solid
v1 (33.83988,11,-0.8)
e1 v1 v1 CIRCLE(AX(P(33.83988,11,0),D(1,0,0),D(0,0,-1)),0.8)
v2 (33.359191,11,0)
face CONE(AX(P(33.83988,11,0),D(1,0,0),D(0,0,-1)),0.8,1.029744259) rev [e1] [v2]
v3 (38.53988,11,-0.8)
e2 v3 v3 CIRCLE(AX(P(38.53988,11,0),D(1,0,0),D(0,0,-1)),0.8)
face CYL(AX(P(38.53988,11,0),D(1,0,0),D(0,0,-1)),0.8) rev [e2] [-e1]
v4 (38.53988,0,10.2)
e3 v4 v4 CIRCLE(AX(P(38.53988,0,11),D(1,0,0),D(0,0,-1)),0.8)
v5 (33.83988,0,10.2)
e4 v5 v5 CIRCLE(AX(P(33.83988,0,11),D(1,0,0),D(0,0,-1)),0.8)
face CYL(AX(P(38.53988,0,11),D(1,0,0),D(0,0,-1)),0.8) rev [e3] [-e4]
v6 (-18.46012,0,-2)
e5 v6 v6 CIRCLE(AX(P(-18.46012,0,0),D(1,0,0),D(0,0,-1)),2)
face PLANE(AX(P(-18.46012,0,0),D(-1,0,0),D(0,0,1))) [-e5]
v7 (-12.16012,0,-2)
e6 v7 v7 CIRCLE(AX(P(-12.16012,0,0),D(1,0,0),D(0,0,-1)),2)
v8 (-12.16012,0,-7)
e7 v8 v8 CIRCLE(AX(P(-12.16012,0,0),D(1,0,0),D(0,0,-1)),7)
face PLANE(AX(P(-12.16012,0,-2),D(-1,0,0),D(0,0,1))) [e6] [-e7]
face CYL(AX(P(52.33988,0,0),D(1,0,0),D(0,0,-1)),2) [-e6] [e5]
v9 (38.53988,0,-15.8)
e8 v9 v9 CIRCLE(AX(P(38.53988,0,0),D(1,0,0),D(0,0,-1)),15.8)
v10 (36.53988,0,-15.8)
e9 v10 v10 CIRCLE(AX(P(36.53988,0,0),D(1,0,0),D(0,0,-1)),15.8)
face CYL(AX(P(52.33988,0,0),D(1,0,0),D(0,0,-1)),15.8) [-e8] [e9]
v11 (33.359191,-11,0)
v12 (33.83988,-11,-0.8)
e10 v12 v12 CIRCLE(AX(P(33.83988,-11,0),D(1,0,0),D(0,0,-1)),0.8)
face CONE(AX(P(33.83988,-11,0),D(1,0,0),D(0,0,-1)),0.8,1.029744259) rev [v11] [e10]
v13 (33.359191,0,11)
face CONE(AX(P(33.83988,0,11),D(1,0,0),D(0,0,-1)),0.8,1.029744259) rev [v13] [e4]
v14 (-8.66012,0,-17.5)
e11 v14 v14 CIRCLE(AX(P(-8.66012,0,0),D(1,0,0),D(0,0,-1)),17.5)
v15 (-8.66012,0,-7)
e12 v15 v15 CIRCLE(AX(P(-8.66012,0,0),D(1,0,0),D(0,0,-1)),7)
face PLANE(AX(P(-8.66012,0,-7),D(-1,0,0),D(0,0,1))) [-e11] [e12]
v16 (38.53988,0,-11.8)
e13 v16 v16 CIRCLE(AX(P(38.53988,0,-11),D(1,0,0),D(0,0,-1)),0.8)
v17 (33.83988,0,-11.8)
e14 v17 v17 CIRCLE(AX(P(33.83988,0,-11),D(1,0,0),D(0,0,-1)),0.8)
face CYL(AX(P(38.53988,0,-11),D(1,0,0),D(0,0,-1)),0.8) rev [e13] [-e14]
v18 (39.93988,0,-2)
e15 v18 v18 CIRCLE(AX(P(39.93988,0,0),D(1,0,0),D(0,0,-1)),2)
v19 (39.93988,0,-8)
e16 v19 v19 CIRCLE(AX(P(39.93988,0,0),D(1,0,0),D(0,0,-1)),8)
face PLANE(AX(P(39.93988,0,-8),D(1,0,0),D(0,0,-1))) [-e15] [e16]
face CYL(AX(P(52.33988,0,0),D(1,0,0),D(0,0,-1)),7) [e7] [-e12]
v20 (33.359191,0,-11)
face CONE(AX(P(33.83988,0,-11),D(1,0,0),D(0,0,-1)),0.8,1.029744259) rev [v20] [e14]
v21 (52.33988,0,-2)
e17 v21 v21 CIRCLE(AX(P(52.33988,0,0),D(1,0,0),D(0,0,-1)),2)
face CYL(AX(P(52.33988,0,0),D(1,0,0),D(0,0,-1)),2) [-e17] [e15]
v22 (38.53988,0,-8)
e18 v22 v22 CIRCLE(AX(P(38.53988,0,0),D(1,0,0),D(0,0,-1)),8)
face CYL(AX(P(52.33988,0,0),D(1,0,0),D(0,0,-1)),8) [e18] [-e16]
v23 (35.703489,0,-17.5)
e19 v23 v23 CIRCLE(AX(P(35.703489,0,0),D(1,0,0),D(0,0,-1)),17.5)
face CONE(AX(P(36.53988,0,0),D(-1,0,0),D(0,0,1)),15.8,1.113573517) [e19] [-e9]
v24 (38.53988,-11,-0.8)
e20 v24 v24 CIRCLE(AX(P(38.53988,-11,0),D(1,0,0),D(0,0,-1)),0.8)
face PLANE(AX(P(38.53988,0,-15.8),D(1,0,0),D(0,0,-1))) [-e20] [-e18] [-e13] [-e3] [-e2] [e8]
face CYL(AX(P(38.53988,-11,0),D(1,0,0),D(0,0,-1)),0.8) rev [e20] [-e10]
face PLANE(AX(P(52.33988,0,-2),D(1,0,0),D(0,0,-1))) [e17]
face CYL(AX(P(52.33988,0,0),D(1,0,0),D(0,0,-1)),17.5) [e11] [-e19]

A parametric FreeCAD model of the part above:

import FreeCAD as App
import Part
import Sketcher
from FreeCAD import Vector
Q = App.Units.Quantity


def add_polygon(sketch, points):
    """Adds a closed chain of lines whose ends are joined by coincident constraints."""
    first, n = sketch.GeometryCount, len(points)
    for a, b in zip(points, points[1:] + points[:1]):
        sketch.addGeometry(Part.LineSegment(App.Vector(*a, 0), App.Vector(*b, 0)), False)
    for i in range(n):
        sketch.addConstraint(Sketcher.Constraint("Coincident", first + i, 2, first + (i + 1) % n, 1))

doc = App.newDocument("Part")
params = doc.addObject("Spreadsheet::Sheet", "Params")
for row, (alias, value) in enumerate([
    ("sketch1_width", "2 mm"),
    ("sketch1_height", "6 mm"),
    ("sketch1_height2", "5 mm"),
    ("sketch1_width2", "70.8 mm"),
    ("sketch1_width3", "12.4 mm"),
    ("revolution_angle", "360 deg"),
    ("sketch2_width", "4.7 mm"),
    ("sketch2_height", "0.8 mm"),
    ("groove_angle", "360 deg"),
], start=1):
    params.set(f"A{row}", alias)
    params.set(f"B{row}", "=" + value)
    params.setAlias(f"B{row}", alias)

body = doc.addObject("PartDesign::Body", "Body")

sketch1 = body.newObject("Sketcher::SketchObject", "Sketch")
sketch1.AttachmentSupport = (doc.getObject("XZ_Plane"), [""])
sketch1.MapMode = "FlatFace"
add_polygon(sketch1, [(-18.5, -2), (-18.5, 0), (52.3, 0), (52.3, -2), (39.9, -2), (39.9, -8), (38.5, -8), (38.5, -15.8), (36.5, -15.8), (35.7, -17.5), (-8.7, -17.5), (-8.7, -7), (-12.2, -7), (-12.2, -2)])
sketch1.addConstraint(Sketcher.Constraint("Vertical", 0))
sketch1.addConstraint(Sketcher.Constraint("Horizontal", 1))
sketch1.addConstraint(Sketcher.Constraint("Vertical", 2))
sketch1.addConstraint(Sketcher.Constraint("Horizontal", 3))
sketch1.addConstraint(Sketcher.Constraint("Vertical", 4))
sketch1.addConstraint(Sketcher.Constraint("Horizontal", 5))
sketch1.addConstraint(Sketcher.Constraint("Vertical", 6))
sketch1.addConstraint(Sketcher.Constraint("Horizontal", 7))
sketch1.addConstraint(Sketcher.Constraint("Horizontal", 9))
sketch1.addConstraint(Sketcher.Constraint("Vertical", 10))
sketch1.addConstraint(Sketcher.Constraint("Horizontal", 11))
sketch1.addConstraint(Sketcher.Constraint("Vertical", 12))
sketch1.addConstraint(Sketcher.Constraint("Horizontal", 13))
sketch1.addConstraint(Sketcher.Constraint("PointOnObject", 0, 2, -1))
sketch1.addConstraint(Sketcher.Constraint("Horizontal", 3, 2, 12, 2))
sketch1.addConstraint(Sketcher.Constraint("Equal", 7, 0))
sketch1.addConstraint(Sketcher.Constraint("DistanceX", 7, 2, 7, 1, Q("2 mm")))
sketch1.addConstraint(Sketcher.Constraint("DistanceY", 4, 2, 4, 1, Q("6 mm")))
sketch1.addConstraint(Sketcher.Constraint("DistanceY", 12, 1, 12, 2, Q("5 mm")))
sketch1.addConstraint(Sketcher.Constraint("DistanceX", 1, 1, 1, 2, Q("70.8 mm")))
sketch1.addConstraint(Sketcher.Constraint("DistanceX", 3, 2, 3, 1, Q("12.4 mm")))
sketch1.addConstraint(Sketcher.Constraint("DistanceX", 5, 2, 5, 1, Q("1.4 mm")))
sketch1.addConstraint(Sketcher.Constraint("DistanceX", 11, 2, 11, 1, Q("3.5 mm")))
sketch1.addConstraint(Sketcher.Constraint("DistanceX", 13, 2, 13, 1, Q("6.3 mm")))
sketch1.addConstraint(Sketcher.Constraint("DistanceY", 6, 2, 6, 1, Q("7.8 mm")))
sketch1.addConstraint(Sketcher.Constraint("DistanceY", 10, 1, 10, 2, Q("10.5 mm")))
sketch1.addConstraint(Sketcher.Constraint("DistanceX", 9, 2, 9, 1, Q("44.363609 mm")))
sketch1.addConstraint(Sketcher.Constraint("DistanceX", 0, 2, -1, 1, Q("18.46012 mm")))
sketch1.setExpression("Constraints[30]", "Params.sketch1_width")
sketch1.setExpression("Constraints[31]", "Params.sketch1_height")
sketch1.setExpression("Constraints[32]", "Params.sketch1_height2")
sketch1.setExpression("Constraints[33]", "Params.sketch1_width2")
sketch1.setExpression("Constraints[34]", "Params.sketch1_width3")
revolution = body.newObject("PartDesign::Revolution", "Revolution")
revolution.Profile = sketch1
revolution.ReferenceAxis = (sketch1, ["H_Axis"])
revolution.setExpression("Angle", "Params.revolution_angle")

sketch2 = body.newObject("Sketcher::SketchObject", "Sketch001")
sketch2.AttachmentSupport = (doc.getObject("XZ_Plane"), [""])
sketch2.MapMode = "FlatFace"
add_polygon(sketch2, [(33.4, -11), (38.5, -11), (38.5, -11.8), (33.8, -11.8)])
sketch2.addGeometry(Part.LineSegment(Vector(38.5, -11, 0), Vector(33.4, -11, 0)), True)
sketch2.addConstraint(Sketcher.Constraint("Horizontal", 0))
sketch2.addConstraint(Sketcher.Constraint("Vertical", 1))
sketch2.addConstraint(Sketcher.Constraint("Horizontal", 2))
sketch2.addConstraint(Sketcher.Constraint("Horizontal", 4))
sketch2.addConstraint(Sketcher.Constraint("Coincident", 4, 1, 0, 2))
sketch2.addConstraint(Sketcher.Constraint("Equal", 0, 4))
sketch2.addConstraint(Sketcher.Constraint("Angle", 3, Q("121 deg")))
sketch2.addConstraint(Sketcher.Constraint("DistanceX", 2, 2, 2, 1, Q("4.7 mm")))
sketch2.addConstraint(Sketcher.Constraint("DistanceY", 1, 2, 1, 1, Q("0.8 mm")))
sketch2.addConstraint(Sketcher.Constraint("DistanceY", 0, 2, -1, 1, Q("11 mm")))
sketch2.addConstraint(Sketcher.Constraint("DistanceX", -1, 1, 0, 2, Q("38.53988 mm")))
sketch2.setExpression("Constraints[11]", "Params.sketch2_width")
sketch2.setExpression("Constraints[12]", "Params.sketch2_height")
groove = body.newObject("PartDesign::Groove", "Groove")
groove.Profile = sketch2
groove.ReferenceAxis = (sketch2, ["Axis0"])
groove.setExpression("Angle", "Params.groove_angle")
doc.recompute()

polarpattern = body.newObject("PartDesign::PolarPattern", "PolarPattern")
polarpattern.Originals = [groove]
polarpattern.Axis = (doc.getObject("X_Axis"), [""])
polarpattern.Angle = 360
polarpattern.Occurrences = 4
body.Tip = polarpattern

doc.recompute()
